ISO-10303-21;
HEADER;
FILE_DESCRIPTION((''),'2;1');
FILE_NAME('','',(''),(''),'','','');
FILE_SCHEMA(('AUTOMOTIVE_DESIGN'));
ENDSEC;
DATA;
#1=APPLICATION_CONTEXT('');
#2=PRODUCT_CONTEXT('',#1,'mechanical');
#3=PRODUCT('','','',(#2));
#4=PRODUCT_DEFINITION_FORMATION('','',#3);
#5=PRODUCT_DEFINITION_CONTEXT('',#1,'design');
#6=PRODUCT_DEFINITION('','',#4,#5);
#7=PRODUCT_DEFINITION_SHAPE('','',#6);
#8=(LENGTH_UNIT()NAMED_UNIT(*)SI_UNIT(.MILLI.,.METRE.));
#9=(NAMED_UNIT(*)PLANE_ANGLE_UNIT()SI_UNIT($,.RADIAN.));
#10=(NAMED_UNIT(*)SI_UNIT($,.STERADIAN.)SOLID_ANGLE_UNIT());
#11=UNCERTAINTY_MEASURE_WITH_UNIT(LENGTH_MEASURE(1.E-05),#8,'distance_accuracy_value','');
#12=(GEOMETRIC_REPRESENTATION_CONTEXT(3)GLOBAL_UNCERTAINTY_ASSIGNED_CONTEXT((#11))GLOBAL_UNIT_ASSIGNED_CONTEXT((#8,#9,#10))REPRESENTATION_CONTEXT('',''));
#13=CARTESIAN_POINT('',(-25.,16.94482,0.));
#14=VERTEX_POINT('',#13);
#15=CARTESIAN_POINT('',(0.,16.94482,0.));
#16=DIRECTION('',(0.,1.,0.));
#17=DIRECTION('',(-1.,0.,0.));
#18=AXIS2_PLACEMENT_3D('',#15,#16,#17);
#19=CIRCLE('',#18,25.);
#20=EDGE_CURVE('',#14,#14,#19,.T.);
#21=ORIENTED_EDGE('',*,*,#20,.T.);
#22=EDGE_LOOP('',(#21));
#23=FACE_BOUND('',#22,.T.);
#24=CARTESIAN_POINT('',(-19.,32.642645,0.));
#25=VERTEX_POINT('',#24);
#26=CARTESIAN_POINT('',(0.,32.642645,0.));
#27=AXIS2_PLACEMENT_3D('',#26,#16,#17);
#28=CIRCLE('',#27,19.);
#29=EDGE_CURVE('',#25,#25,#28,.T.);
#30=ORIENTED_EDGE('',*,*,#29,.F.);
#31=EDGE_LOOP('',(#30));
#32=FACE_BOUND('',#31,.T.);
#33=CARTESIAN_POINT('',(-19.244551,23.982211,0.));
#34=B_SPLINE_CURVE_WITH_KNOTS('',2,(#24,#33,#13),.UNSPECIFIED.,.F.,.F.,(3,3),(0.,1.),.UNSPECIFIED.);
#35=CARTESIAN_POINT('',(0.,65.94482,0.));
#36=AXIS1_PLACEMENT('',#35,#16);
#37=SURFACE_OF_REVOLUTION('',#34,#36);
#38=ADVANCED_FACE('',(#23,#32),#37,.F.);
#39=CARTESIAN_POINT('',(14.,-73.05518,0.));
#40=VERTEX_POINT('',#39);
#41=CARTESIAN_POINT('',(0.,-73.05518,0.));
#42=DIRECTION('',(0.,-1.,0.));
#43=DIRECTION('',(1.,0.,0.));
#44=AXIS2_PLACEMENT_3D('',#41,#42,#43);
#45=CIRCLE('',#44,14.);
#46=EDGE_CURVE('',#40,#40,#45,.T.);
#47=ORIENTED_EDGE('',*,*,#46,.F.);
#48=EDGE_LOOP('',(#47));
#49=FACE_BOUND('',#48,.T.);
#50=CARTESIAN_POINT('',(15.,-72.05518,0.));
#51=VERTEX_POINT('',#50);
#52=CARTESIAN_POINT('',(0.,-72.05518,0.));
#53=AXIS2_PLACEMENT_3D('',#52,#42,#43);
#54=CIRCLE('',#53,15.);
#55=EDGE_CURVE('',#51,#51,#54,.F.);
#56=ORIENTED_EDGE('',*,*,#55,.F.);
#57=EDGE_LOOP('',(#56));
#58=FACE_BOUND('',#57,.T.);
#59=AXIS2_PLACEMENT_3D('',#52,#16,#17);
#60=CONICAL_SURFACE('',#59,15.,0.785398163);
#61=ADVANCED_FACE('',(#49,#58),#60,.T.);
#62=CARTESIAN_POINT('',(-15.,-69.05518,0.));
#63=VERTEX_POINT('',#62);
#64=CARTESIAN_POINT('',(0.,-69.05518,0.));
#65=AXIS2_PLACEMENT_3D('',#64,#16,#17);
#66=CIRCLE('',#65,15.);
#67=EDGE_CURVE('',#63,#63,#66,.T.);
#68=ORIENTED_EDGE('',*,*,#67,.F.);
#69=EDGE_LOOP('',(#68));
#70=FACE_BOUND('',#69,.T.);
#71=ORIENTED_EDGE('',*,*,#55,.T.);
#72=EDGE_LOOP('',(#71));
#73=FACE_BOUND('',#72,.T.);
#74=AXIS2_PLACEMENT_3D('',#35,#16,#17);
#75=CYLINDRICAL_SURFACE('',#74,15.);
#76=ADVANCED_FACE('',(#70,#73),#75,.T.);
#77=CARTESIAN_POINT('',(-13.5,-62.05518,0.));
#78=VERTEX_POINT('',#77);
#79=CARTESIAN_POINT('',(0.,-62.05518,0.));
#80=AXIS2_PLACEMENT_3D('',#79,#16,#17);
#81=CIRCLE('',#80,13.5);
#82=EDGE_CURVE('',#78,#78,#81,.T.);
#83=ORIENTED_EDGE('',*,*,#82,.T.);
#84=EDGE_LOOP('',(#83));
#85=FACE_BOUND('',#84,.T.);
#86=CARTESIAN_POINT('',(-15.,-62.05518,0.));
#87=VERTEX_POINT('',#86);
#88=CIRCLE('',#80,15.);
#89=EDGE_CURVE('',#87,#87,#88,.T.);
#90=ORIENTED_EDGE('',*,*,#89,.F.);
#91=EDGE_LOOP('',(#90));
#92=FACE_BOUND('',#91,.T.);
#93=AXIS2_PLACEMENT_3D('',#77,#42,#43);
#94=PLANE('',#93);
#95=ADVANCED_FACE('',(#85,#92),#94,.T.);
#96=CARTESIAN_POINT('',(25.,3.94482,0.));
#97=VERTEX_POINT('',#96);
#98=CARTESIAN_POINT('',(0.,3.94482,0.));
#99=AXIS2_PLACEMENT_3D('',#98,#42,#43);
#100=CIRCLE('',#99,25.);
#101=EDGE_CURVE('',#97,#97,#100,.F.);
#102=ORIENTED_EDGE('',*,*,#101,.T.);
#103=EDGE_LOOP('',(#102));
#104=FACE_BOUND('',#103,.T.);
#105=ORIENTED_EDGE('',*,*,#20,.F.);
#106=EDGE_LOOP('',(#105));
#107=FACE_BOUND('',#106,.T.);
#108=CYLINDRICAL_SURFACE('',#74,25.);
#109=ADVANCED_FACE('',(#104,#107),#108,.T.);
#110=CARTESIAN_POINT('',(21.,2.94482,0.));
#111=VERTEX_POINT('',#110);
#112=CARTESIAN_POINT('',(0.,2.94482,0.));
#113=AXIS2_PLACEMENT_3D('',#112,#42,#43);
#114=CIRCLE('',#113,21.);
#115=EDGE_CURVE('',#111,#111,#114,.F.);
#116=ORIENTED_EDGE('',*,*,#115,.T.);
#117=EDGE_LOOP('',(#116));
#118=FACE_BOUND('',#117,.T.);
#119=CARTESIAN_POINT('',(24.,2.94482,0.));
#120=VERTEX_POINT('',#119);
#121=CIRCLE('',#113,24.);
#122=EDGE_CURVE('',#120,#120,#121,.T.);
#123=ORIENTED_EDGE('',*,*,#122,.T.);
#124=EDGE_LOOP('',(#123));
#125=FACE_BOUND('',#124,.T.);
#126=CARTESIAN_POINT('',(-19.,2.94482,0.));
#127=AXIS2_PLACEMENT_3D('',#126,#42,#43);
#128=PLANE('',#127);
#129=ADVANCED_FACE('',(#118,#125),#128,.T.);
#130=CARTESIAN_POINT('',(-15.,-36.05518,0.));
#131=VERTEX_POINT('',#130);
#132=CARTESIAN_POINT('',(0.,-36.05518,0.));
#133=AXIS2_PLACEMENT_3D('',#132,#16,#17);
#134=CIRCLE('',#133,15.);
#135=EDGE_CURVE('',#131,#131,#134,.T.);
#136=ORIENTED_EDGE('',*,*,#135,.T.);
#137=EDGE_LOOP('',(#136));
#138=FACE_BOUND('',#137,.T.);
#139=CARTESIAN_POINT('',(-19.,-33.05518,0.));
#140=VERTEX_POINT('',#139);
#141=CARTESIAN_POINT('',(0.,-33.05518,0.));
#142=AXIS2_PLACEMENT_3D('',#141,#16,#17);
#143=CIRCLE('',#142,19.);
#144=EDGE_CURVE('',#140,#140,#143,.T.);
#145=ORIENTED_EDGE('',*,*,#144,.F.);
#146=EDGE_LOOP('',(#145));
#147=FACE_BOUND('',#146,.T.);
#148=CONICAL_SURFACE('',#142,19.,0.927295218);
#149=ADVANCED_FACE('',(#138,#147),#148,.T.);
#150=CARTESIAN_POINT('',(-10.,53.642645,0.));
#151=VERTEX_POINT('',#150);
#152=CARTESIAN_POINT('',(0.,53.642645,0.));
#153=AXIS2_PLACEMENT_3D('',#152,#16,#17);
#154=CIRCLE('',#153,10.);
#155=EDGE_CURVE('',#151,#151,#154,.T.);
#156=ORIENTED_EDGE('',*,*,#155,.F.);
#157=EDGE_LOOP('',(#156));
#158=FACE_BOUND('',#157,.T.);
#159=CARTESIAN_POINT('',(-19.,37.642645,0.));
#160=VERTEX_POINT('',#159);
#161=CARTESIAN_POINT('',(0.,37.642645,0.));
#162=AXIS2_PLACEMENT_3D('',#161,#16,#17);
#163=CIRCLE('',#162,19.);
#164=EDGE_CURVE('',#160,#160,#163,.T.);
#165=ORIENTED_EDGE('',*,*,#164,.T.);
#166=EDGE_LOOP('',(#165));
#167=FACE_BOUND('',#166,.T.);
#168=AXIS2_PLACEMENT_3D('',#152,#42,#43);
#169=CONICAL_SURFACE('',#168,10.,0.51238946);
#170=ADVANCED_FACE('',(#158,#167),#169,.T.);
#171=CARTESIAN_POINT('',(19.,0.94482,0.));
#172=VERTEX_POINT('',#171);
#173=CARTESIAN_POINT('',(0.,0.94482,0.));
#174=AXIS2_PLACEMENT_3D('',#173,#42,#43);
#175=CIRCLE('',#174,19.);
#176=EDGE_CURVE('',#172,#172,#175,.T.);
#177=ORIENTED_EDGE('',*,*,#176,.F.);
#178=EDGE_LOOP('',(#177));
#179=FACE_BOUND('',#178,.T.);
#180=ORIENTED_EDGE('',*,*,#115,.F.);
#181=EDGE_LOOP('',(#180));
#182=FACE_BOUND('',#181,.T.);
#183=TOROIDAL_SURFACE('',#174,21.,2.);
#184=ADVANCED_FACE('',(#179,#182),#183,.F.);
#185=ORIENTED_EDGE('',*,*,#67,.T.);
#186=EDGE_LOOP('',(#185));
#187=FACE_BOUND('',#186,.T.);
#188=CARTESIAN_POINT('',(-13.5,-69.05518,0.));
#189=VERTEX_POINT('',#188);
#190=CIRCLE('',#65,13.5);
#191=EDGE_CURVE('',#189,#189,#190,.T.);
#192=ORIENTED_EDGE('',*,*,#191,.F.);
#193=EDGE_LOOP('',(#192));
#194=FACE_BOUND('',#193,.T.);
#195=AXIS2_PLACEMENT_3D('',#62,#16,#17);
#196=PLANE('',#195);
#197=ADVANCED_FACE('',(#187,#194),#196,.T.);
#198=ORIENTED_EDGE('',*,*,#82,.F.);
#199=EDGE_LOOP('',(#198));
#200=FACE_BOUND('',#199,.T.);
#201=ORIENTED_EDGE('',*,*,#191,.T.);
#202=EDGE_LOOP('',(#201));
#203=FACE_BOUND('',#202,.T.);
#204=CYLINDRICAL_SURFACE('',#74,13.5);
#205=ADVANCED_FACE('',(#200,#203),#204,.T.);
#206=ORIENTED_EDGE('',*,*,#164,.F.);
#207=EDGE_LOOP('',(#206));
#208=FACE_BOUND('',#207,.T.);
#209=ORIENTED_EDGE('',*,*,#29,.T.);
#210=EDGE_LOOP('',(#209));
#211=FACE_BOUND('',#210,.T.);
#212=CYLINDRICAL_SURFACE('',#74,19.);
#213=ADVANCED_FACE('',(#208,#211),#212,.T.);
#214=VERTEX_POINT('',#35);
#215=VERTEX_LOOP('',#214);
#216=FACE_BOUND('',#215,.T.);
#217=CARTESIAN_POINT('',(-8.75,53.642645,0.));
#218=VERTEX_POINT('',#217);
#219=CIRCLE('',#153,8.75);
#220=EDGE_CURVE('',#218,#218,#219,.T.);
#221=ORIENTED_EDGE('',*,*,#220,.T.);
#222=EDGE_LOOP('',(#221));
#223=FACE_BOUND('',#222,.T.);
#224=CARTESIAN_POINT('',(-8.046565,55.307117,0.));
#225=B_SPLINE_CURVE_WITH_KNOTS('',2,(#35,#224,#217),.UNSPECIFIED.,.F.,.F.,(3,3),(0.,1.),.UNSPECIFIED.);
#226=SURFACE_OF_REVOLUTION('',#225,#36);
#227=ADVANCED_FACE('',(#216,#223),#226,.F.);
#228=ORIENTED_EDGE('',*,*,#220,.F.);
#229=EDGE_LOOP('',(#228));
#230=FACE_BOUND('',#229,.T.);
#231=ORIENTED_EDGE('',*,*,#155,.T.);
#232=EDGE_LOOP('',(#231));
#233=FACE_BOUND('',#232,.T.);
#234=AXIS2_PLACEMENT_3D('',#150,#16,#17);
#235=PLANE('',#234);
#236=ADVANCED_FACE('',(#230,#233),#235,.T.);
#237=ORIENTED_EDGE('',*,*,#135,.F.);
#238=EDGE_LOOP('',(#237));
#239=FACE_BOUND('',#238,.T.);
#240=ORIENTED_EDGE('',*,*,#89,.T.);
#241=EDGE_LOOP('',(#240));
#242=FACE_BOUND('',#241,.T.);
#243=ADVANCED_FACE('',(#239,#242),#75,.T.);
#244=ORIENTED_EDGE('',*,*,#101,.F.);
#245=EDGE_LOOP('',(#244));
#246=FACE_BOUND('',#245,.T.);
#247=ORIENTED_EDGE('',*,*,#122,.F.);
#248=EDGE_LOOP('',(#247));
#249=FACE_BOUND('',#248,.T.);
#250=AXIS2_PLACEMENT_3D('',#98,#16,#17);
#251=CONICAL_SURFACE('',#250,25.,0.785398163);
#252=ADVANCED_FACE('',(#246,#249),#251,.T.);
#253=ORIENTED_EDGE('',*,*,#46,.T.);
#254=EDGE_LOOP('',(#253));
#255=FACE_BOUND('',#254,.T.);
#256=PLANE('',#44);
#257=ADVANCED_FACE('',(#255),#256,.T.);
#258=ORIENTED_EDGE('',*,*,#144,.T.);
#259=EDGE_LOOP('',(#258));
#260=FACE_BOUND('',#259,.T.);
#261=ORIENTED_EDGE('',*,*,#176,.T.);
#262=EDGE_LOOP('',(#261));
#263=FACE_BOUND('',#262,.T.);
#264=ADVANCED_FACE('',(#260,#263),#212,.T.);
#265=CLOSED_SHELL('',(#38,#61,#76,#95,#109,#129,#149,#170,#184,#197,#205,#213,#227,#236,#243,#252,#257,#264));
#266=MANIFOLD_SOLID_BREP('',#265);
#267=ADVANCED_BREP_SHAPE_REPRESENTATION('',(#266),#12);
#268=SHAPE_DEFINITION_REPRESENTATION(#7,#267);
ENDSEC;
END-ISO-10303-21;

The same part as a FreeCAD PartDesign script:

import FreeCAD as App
import Part
import Sketcher

V = App.Vector
Q = App.Units.Quantity


def edges_at(feature, points):
    """Names of the edges that pass closest to the given points."""
    edges = feature.Shape.Edges
    near = lambda p: min(range(len(edges)), key=lambda i: edges[i].distToShape(Part.Vertex(*p))[0])
    return sorted({f"Edge{near(p) + 1}" for p in points})

doc = App.newDocument("Part")
body = doc.addObject("PartDesign::Body", "Body")

# Sketch on XY plane
sketch1 = doc.addObject("Sketcher::SketchObject", "Sketch")
body.addObject(sketch1)
sketch1.AttachmentSupport = (doc.XY_Plane, [""])
sketch1.MapMode = "FlatFace"
sketch1.addGeometry(Part.LineSegment(V(-15, -73.05518, 0), V(0, -73.05518, 0)), False)
sketch1.addGeometry(Part.LineSegment(V(0, -73.05518, 0), V(0, 65.94482, 0)), False)
sketch1.addGeometry(Part.BSplineCurve([V(-8.75, 53.642645, 0), V(-8.046565, 55.307117, 0), V(0, 65.94482, 0)], [3, 3], [0, 1], False, 2, [1, 1, 1], False), False)
sketch1.addGeometry(Part.LineSegment(V(-8.75, 53.642645, 0), V(-10, 53.642645, 0)), False)
sketch1.addGeometry(Part.LineSegment(V(-10, 53.642645, 0), V(-19, 37.642645, 0)), False)
sketch1.addGeometry(Part.LineSegment(V(-19, 37.642645, 0), V(-19, 32.642645, 0)), False)
sketch1.addGeometry(Part.BSplineCurve([V(-25, 16.94482, 0), V(-19.244551, 23.982211, 0), V(-19, 32.642645, 0)], [3, 3], [0, 1], False, 2, [1, 1, 1], False), False)
sketch1.addGeometry(Part.LineSegment(V(-25, 16.94482, 0), V(-25, 2.94482, 0)), False)
sketch1.addGeometry(Part.LineSegment(V(-25, 2.94482, 0), V(-19, 2.94482, 0)), False)
sketch1.addGeometry(Part.LineSegment(V(-19, 2.94482, 0), V(-19, -33.05518, 0)), False)
sketch1.addGeometry(Part.LineSegment(V(-19, -33.05518, 0), V(-15, -36.05518, 0)), False)
sketch1.addGeometry(Part.LineSegment(V(-15, -36.05518, 0), V(-15, -62.05518, 0)), False)
sketch1.addGeometry(Part.LineSegment(V(-15, -62.05518, 0), V(-13.5, -62.05518, 0)), False)
sketch1.addGeometry(Part.LineSegment(V(-13.5, -62.05518, 0), V(-13.5, -69.05518, 0)), False)
sketch1.addGeometry(Part.LineSegment(V(-13.5, -69.05518, 0), V(-15, -69.05518, 0)), False)
sketch1.addGeometry(Part.LineSegment(V(-15, -69.05518, 0), V(-15, -73.05518, 0)), False)
sketch1.addConstraint(Sketcher.Constraint("Block", 2))
sketch1.addConstraint(Sketcher.Constraint("Block", 6))
sketch1.addConstraint(Sketcher.Constraint("Coincident", 0, 2, 1, 1))
sketch1.addConstraint(Sketcher.Constraint("Coincident", 1, 2, 2, 2))
sketch1.addConstraint(Sketcher.Constraint("Coincident", 2, 1, 3, 1))
sketch1.addConstraint(Sketcher.Constraint("Coincident", 3, 2, 4, 1))
sketch1.addConstraint(Sketcher.Constraint("Coincident", 4, 2, 5, 1))
sketch1.addConstraint(Sketcher.Constraint("Coincident", 5, 2, 6, 2))
sketch1.addConstraint(Sketcher.Constraint("Coincident", 6, 1, 7, 1))
sketch1.addConstraint(Sketcher.Constraint("Coincident", 7, 2, 8, 1))
sketch1.addConstraint(Sketcher.Constraint("Coincident", 8, 2, 9, 1))
sketch1.addConstraint(Sketcher.Constraint("Coincident", 9, 2, 10, 1))
sketch1.addConstraint(Sketcher.Constraint("Coincident", 10, 2, 11, 1))
sketch1.addConstraint(Sketcher.Constraint("Coincident", 11, 2, 12, 1))
sketch1.addConstraint(Sketcher.Constraint("Coincident", 12, 2, 13, 1))
sketch1.addConstraint(Sketcher.Constraint("Coincident", 13, 2, 14, 1))
sketch1.addConstraint(Sketcher.Constraint("Coincident", 14, 2, 15, 1))
sketch1.addConstraint(Sketcher.Constraint("Coincident", 15, 2, 0, 1))
sketch1.addConstraint(Sketcher.Constraint("Horizontal", 0))
sketch1.addConstraint(Sketcher.Constraint("Vertical", 1))
sketch1.addConstraint(Sketcher.Constraint("Horizontal", 3))
sketch1.addConstraint(Sketcher.Constraint("Vertical", 5))
sketch1.addConstraint(Sketcher.Constraint("Vertical", 7))
sketch1.addConstraint(Sketcher.Constraint("Horizontal", 8))
sketch1.addConstraint(Sketcher.Constraint("Vertical", 9))
sketch1.addConstraint(Sketcher.Constraint("Vertical", 11))
sketch1.addConstraint(Sketcher.Constraint("Horizontal", 12))
sketch1.addConstraint(Sketcher.Constraint("Vertical", 13))
sketch1.addConstraint(Sketcher.Constraint("Horizontal", 14))
sketch1.addConstraint(Sketcher.Constraint("Vertical", 15))
sketch1.addConstraint(Sketcher.Constraint("Vertical", 5, 2, 8, 2))
sketch1.addConstraint(Sketcher.Constraint("Vertical", 11, 2, 14, 2))
sketch1.addConstraint(Sketcher.Constraint("DistanceX", 0, 1, 0, 2, Q("15 mm")))
sketch1.addConstraint(Sketcher.Constraint("DistanceY", 1, 1, 1, 2, Q("139 mm")))
sketch1.addConstraint(Sketcher.Constraint("DistanceY", 5, 2, 5, 1, Q("5 mm")))
sketch1.addConstraint(Sketcher.Constraint("DistanceY", 7, 2, 7, 1, Q("14 mm")))
sketch1.addConstraint(Sketcher.Constraint("DistanceY", 9, 2, 9, 1, Q("36 mm")))
sketch1.addConstraint(Sketcher.Constraint("DistanceY", 11, 2, 11, 1, Q("26 mm")))
sketch1.addConstraint(Sketcher.Constraint("DistanceY", 13, 2, 13, 1, Q("7 mm")))
sketch1.addConstraint(Sketcher.Constraint("DistanceY", 15, 2, 15, 1, Q("4 mm")))
sketch1.addConstraint(Sketcher.Constraint("DistanceX", 12, 1, 12, 2, Q("1.5 mm")))
sketch1.addConstraint(Sketcher.Constraint("DistanceX", 3, 2, -1, 1, Q("10 mm")))
revolution = doc.addObject("PartDesign::Revolution", "Revolution")
body.addObject(revolution)
revolution.Profile = sketch1
revolution.ReferenceAxis = (sketch1, ["V_Axis"])
revolution.Angle = 360
doc.recompute()

chamfer = doc.addObject("PartDesign::Chamfer", "Chamfer")
body.addObject(chamfer)
chamfer.Base = (revolution, edges_at(revolution, [(25, 2.945, 0)]))
chamfer.Size = 1
doc.recompute()

fillet = doc.addObject("PartDesign::Fillet", "Fillet")
body.addObject(fillet)
fillet.Base = (chamfer, edges_at(chamfer, [(19, 2.945, 0)]))
fillet.Radius = 2
doc.recompute()

chamfer2 = doc.addObject("PartDesign::Chamfer", "Chamfer001")
body.addObject(chamfer2)
chamfer2.Base = (fillet, edges_at(fillet, [(15, -73.055, 0)]))
chamfer2.Size = 1

doc.recompute()
